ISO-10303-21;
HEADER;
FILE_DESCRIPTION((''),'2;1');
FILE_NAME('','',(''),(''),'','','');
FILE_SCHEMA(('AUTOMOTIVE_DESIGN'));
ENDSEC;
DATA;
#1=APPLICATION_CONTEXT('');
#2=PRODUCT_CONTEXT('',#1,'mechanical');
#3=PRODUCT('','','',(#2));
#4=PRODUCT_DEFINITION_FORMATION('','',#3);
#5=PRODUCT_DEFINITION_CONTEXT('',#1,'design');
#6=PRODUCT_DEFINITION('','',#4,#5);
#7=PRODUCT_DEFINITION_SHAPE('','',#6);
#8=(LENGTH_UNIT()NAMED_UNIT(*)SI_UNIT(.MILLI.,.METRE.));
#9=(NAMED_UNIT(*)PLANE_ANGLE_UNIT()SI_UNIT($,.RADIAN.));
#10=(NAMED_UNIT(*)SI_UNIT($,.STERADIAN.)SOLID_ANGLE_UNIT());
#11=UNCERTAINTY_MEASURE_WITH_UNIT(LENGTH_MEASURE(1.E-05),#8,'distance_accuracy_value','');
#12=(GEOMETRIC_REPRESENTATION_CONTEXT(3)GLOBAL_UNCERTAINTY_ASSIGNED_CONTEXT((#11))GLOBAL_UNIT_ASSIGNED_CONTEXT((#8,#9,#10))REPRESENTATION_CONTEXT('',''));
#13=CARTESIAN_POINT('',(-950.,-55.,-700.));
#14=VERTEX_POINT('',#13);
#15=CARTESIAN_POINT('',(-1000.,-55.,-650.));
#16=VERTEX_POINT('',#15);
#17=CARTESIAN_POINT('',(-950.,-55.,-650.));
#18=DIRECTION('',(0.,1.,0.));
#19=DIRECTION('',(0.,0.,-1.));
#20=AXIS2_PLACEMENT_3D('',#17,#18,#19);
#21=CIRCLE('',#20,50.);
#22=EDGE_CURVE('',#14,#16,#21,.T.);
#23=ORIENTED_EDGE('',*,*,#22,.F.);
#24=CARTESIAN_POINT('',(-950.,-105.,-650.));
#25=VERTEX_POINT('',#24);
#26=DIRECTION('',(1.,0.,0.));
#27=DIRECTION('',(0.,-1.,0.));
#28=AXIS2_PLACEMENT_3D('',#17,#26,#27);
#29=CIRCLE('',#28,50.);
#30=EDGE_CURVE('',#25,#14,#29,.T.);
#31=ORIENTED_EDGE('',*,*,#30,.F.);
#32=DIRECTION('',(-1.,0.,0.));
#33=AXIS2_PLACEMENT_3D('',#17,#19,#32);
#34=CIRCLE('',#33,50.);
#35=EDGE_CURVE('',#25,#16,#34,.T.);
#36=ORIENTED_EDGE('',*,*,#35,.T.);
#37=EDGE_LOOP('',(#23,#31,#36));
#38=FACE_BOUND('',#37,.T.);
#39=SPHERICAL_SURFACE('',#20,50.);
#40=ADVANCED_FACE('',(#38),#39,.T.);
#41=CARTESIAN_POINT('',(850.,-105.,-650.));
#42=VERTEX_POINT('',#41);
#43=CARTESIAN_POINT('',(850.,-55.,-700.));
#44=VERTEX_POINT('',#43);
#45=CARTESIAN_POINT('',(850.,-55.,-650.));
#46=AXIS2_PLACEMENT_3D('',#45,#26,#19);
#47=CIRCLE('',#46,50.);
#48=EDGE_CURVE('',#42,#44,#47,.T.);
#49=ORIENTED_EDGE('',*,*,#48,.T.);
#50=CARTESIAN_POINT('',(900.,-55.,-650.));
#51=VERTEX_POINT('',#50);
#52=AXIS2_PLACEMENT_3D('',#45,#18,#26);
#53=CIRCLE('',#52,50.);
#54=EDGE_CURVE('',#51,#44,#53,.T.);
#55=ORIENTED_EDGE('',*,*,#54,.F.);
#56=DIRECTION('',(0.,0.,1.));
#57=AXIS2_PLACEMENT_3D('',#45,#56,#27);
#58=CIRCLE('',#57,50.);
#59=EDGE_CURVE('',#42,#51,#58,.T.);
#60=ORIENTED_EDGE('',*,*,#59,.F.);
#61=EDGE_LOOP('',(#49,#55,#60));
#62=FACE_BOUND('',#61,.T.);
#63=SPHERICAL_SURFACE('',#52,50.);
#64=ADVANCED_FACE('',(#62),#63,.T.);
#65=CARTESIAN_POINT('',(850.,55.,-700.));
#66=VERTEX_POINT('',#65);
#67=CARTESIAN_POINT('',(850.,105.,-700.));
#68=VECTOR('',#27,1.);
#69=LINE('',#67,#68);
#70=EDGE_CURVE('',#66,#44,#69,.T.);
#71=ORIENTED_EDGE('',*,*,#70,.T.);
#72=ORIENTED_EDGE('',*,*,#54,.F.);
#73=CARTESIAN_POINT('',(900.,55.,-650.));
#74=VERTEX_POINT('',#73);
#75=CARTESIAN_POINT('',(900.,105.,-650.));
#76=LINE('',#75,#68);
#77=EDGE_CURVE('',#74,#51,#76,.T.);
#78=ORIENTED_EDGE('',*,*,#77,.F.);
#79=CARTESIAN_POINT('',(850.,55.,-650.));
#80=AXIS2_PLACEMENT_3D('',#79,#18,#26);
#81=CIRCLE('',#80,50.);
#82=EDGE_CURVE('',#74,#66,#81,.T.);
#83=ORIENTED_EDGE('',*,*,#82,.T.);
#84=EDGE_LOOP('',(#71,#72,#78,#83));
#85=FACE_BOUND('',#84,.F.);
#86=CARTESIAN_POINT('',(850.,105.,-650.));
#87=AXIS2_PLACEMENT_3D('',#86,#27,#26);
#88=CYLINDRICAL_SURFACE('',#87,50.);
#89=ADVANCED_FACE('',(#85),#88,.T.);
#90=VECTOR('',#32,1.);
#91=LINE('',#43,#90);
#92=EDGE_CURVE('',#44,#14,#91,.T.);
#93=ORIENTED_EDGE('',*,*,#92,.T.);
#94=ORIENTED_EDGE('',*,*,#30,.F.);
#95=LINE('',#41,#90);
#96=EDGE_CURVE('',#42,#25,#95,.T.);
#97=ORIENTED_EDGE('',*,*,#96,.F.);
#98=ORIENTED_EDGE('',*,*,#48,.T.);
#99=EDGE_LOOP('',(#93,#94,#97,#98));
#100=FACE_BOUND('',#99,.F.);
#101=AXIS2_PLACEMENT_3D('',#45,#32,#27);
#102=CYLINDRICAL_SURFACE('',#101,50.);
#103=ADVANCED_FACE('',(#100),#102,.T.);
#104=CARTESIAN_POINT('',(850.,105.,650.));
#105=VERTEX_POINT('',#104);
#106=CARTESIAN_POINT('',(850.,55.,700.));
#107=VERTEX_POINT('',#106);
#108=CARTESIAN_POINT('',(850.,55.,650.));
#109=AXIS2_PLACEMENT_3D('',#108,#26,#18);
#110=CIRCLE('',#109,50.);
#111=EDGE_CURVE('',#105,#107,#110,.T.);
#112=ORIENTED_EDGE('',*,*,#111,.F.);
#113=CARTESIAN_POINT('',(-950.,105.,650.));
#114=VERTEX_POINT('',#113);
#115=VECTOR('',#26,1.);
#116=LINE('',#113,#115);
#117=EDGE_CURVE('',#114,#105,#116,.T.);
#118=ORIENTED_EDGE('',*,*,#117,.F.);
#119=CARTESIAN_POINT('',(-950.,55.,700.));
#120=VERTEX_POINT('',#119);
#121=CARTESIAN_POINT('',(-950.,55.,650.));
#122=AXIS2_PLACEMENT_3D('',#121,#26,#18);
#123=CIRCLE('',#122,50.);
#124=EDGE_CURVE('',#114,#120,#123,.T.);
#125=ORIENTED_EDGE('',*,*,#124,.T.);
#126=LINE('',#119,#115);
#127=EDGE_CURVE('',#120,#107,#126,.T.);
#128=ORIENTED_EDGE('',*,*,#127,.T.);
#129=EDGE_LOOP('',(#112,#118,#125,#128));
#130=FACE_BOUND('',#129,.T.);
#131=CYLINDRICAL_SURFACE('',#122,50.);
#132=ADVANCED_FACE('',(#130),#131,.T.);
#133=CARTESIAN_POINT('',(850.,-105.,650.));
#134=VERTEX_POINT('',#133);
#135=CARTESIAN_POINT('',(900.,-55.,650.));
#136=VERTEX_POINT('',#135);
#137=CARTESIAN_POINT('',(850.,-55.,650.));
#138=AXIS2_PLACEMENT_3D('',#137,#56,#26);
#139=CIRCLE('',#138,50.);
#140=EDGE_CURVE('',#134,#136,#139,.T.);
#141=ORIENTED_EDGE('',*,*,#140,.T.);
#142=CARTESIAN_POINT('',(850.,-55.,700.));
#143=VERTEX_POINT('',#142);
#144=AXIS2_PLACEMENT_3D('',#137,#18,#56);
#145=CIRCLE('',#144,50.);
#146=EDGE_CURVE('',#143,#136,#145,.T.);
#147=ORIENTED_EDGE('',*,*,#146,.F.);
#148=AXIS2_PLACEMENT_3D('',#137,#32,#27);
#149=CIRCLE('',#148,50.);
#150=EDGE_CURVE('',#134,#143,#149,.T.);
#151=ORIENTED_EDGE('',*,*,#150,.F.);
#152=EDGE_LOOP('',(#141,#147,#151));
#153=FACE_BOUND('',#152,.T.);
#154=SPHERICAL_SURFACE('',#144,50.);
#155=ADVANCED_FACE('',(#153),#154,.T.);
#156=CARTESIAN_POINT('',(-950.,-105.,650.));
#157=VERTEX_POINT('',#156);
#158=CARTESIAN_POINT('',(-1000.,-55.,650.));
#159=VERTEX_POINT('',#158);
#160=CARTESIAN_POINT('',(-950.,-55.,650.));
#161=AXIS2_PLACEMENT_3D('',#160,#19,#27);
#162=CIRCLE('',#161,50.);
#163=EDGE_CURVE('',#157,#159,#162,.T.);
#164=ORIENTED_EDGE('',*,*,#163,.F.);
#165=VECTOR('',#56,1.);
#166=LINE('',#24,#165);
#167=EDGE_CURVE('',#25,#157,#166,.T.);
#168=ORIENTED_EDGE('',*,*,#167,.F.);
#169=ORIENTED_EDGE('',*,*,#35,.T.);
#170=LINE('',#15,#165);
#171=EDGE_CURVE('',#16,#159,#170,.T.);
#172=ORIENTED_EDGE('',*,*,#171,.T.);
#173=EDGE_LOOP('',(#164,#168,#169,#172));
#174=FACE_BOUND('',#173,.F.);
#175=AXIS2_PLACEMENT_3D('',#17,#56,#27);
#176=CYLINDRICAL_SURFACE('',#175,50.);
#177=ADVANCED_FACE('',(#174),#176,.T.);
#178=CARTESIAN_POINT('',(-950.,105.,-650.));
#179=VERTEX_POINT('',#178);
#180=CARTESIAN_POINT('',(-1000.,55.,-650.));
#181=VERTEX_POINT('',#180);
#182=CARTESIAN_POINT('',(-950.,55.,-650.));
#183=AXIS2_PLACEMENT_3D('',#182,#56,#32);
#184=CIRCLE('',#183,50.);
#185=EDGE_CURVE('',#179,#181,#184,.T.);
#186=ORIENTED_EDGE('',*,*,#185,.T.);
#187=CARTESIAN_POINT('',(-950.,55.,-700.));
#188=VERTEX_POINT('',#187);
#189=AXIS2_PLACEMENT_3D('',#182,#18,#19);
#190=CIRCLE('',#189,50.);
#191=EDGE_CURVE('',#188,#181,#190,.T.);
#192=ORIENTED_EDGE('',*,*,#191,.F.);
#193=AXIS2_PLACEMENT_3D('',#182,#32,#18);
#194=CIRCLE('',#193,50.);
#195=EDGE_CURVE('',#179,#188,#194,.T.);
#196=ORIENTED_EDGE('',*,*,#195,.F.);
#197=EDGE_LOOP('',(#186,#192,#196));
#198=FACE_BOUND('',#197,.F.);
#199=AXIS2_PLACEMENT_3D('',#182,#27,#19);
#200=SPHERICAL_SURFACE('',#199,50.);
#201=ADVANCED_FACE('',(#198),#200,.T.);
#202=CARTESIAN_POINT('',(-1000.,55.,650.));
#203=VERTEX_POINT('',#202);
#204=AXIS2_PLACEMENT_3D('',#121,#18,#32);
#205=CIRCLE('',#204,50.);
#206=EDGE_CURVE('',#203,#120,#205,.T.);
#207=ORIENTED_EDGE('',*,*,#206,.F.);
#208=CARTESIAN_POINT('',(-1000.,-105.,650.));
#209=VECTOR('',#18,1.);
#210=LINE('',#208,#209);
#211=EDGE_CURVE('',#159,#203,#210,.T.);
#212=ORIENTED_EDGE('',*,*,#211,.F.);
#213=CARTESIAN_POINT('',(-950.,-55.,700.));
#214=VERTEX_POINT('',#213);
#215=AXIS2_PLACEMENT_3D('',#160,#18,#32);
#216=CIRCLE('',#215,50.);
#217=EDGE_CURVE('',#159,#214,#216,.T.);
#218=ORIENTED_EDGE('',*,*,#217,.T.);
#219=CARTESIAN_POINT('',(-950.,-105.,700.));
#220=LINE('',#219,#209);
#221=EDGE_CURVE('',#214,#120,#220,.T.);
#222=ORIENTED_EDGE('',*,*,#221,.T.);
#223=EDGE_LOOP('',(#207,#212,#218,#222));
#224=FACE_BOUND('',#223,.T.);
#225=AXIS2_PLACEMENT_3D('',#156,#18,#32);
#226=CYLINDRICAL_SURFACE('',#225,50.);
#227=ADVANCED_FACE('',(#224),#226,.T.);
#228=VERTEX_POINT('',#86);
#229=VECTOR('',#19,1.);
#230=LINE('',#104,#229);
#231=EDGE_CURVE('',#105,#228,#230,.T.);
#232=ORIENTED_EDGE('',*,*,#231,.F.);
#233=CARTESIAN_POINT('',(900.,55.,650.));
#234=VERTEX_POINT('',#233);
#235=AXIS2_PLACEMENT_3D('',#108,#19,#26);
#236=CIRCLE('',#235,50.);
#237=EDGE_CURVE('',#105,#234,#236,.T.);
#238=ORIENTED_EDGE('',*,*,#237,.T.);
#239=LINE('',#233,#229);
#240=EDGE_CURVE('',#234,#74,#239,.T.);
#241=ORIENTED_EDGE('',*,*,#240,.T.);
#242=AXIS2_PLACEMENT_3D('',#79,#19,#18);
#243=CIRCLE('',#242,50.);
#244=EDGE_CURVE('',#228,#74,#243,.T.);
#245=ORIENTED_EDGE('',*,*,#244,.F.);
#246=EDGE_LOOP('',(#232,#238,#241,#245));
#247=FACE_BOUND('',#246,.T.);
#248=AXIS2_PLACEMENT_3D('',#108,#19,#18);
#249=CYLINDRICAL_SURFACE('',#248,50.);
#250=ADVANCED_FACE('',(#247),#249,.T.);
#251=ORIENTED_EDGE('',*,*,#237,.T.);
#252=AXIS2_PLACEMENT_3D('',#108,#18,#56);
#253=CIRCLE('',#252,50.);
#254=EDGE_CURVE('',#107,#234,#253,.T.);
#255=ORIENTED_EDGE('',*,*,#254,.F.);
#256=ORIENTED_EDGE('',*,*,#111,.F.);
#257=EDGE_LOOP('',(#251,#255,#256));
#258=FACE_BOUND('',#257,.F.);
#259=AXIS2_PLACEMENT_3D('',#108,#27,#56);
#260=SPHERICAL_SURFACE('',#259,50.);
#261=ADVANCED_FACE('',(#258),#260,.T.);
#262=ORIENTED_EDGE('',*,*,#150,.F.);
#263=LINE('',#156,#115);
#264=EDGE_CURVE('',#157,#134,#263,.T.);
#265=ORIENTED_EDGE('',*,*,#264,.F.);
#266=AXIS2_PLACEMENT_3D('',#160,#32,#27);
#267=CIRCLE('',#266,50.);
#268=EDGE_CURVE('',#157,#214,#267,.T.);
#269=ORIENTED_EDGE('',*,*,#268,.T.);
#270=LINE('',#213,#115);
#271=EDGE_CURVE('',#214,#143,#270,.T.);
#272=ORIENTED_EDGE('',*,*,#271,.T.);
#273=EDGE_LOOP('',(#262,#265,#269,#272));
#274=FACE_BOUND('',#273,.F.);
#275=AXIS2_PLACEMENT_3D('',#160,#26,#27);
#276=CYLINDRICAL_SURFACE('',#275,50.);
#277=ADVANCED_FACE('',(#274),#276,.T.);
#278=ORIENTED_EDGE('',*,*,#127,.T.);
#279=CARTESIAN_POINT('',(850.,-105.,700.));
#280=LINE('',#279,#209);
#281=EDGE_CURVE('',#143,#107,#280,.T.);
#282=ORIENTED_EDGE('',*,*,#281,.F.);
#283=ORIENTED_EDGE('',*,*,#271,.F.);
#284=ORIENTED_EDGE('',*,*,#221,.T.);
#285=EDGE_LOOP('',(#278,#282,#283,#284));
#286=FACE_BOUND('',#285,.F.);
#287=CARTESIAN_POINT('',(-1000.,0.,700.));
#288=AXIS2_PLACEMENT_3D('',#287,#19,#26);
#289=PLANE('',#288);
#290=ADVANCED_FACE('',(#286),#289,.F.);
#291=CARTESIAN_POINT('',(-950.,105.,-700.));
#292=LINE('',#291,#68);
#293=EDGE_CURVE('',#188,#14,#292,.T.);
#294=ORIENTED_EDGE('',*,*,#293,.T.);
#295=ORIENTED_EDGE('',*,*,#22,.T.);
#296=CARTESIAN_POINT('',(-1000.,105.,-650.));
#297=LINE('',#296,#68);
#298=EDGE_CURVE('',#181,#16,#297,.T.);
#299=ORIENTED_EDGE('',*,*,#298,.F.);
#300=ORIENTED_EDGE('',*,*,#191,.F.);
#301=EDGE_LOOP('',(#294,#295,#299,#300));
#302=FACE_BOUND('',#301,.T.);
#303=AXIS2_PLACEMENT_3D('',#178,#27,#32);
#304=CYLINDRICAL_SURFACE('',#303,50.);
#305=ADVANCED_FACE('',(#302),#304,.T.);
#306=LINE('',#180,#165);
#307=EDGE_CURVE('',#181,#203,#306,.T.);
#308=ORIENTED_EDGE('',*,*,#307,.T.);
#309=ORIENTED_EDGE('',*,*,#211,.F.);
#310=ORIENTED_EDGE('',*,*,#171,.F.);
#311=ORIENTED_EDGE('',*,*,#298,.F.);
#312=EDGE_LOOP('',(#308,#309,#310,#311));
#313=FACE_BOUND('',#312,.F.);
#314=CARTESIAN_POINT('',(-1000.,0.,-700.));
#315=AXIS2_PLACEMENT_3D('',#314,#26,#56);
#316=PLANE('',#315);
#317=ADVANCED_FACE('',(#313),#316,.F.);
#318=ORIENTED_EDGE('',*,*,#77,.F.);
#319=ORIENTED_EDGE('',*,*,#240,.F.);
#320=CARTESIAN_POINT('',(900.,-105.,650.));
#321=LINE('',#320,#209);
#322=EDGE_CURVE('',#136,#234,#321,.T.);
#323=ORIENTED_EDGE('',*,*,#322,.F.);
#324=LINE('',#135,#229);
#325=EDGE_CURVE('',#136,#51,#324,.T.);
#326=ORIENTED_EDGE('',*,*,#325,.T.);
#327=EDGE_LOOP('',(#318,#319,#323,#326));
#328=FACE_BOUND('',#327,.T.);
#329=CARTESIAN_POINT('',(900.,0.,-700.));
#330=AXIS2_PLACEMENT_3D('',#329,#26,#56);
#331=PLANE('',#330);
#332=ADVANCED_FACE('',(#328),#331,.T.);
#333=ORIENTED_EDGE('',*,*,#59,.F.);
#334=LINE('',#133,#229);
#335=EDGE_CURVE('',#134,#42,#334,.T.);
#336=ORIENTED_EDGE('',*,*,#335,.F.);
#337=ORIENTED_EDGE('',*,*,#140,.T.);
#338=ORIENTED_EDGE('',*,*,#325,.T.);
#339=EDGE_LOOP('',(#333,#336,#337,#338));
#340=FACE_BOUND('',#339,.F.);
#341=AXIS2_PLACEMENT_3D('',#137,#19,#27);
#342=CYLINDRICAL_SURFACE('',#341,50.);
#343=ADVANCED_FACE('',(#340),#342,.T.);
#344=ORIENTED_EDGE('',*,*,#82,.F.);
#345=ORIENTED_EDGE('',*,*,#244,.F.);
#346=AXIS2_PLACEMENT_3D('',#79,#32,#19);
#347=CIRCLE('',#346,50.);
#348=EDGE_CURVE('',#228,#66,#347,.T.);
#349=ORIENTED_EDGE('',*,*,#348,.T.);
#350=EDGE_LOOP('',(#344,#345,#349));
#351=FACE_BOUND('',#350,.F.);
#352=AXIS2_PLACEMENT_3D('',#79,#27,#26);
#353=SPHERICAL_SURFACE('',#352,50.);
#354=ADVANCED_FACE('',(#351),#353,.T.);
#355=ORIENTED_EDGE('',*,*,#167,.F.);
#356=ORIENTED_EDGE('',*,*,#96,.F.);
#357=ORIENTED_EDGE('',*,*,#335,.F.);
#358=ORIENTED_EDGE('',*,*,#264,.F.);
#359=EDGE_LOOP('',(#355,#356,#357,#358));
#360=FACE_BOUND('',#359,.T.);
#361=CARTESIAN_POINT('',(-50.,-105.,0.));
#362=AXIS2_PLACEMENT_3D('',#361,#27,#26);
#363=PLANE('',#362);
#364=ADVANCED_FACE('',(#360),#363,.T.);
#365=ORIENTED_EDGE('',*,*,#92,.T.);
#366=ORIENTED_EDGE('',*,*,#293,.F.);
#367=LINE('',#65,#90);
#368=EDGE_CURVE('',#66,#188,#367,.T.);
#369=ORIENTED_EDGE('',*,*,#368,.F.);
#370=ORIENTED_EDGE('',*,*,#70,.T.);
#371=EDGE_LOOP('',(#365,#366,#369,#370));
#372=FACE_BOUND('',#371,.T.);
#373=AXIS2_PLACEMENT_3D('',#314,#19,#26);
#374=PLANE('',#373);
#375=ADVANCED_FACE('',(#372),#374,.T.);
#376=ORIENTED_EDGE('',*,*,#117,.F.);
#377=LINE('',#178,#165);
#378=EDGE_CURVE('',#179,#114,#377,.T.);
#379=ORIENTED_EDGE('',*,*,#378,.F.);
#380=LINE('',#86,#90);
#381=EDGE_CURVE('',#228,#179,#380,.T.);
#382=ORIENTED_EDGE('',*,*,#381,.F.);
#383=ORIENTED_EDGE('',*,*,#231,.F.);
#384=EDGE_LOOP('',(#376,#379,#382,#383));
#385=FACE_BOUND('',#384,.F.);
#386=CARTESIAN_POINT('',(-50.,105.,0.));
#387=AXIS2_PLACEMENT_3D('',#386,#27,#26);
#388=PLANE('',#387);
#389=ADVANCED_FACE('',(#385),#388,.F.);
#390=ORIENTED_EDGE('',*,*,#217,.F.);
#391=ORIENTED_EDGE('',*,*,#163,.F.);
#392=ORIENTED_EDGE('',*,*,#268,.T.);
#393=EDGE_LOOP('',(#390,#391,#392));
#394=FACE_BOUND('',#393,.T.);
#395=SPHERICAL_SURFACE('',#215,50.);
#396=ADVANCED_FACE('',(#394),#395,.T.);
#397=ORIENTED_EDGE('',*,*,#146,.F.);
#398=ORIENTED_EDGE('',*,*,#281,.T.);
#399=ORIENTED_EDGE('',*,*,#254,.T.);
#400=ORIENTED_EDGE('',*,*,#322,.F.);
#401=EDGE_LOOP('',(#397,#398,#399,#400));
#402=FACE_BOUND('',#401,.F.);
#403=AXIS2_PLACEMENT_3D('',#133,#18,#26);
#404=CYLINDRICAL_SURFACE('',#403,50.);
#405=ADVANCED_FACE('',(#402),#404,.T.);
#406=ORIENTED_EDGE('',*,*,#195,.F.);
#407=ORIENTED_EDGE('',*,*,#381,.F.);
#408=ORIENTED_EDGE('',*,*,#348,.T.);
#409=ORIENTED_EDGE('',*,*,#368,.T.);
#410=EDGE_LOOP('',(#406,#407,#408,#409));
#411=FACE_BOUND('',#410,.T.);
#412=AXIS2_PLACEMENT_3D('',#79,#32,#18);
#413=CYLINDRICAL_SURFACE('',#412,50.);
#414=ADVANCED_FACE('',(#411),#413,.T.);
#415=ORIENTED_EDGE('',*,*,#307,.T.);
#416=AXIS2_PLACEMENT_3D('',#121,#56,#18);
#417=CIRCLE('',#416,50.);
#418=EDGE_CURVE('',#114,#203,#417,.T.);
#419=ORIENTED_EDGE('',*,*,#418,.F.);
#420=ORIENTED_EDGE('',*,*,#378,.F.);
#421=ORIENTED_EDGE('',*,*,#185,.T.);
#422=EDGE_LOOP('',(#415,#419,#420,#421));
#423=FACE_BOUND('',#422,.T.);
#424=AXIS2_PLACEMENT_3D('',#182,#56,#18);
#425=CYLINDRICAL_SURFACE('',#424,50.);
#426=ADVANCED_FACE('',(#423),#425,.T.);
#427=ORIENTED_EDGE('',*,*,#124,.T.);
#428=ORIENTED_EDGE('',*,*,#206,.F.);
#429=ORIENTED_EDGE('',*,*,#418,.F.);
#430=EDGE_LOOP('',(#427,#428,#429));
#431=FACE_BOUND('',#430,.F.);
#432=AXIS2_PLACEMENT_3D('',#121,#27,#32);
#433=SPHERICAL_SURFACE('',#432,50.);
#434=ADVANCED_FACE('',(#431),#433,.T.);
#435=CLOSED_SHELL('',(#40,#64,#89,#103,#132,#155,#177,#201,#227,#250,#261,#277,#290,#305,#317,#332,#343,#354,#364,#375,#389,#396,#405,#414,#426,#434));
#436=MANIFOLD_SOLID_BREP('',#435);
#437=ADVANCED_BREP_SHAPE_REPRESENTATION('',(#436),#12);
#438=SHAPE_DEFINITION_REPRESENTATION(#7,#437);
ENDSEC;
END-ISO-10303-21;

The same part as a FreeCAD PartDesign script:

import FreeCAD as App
import Part
import Sketcher

V = App.Vector
Q = App.Units.Quantity


def edges_at(feature, points):
    """Names of the edges that pass closest to the given points."""
    edges = feature.Shape.Edges
    near = lambda p: min(range(len(edges)), key=lambda i: edges[i].distToShape(Part.Vertex(*p))[0])
    return sorted({f"Edge{near(p) + 1}" for p in points})


def add_polygon(sketch, points):
    """Adds a closed chain of lines whose ends are joined by coincident constraints."""
    first, n = sketch.GeometryCount, len(points)
    for a, b in zip(points, points[1:] + points[:1]):
        sketch.addGeometry(Part.LineSegment(App.Vector(*a, 0), App.Vector(*b, 0)), False)
    for i in range(n):
        sketch.addConstraint(Sketcher.Constraint("Coincident", first + i, 2, first + (i + 1) % n, 1))

doc = App.newDocument("Part")
body = doc.addObject("PartDesign::Body", "Body")

sketch1 = doc.addObject("Sketcher::SketchObject", "Sketch")
body.addObject(sketch1)
sketch1.AttachmentSupport = (doc.XZ_Plane, [""])
sketch1.MapMode = "FlatFace"
add_polygon(sketch1, [(-1000, 700), (-1000, -700), (900, -700), (900, 700)])
sketch1.addConstraint(Sketcher.Constraint("Vertical", 0))
sketch1.addConstraint(Sketcher.Constraint("Horizontal", 1))
sketch1.addConstraint(Sketcher.Constraint("Vertical", 2))
sketch1.addConstraint(Sketcher.Constraint("Horizontal", 3))
sketch1.addConstraint(Sketcher.Constraint("DistanceX", 1, 1, 1, 2, Q("1900 mm")))
sketch1.addConstraint(Sketcher.Constraint("DistanceY", 0, 2, 0, 1, Q("1400 mm")))
sketch1.addConstraint(Sketcher.Constraint("DistanceX", 0, 2, -1, 1, Q("1000 mm")))
sketch1.addConstraint(Sketcher.Constraint("DistanceY", 0, 2, -1, 1, Q("700 mm")))
pad1 = doc.addObject("PartDesign::Pad", "Pad")
body.addObject(pad1)
pad1.Profile = sketch1
pad1.Length = 210
pad1.Midplane = True
doc.recompute()

fillet = doc.addObject("PartDesign::Fillet", "Fillet")
body.addObject(fillet)
fillet.Base = (pad1, edges_at(pad1, [
    (-1000, 0, 700),
    (900, 0, 700),
    (900, 0, -700),
    (-1000, 0, -700),
]))
fillet.Radius = 50
doc.recompute()

fillet2 = doc.addObject("PartDesign::Fillet", "Fillet001")
body.addObject(fillet2)
fillet2.Base = (fillet, edges_at(fillet, [
    (-50, -105, 700),
    (885.355, -105, 685.355),
    (-985.355, -105, 685.355),
    (900, -105, 0),
    (-1000, -105, 0),
    (885.355, -105, -685.355),
    (-985.355, -105, -685.355),
    (-50, -105, -700),
    (-50, 105, 700),
    (885.355, 105, 685.355),
    (-985.355, 105, 685.355),
    (900, 105, 0),
    (-1000, 105, 0),
    (885.355, 105, -685.355),
    (-985.355, 105, -685.355),
    (-50, 105, -700),
]))
fillet2.Radius = 50

doc.recompute()
